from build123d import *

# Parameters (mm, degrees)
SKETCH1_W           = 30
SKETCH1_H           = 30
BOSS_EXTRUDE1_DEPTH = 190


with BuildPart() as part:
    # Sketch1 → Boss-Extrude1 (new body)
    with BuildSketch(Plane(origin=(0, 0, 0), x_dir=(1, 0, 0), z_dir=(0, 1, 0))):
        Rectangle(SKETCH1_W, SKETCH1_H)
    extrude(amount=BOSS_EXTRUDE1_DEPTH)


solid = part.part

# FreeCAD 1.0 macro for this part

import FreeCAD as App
import Part
import Sketcher

V = App.Vector


def add_polygon(sketch, points):
    """Adds a closed chain of lines whose ends are joined by coincident constraints."""
    first, n = sketch.GeometryCount, len(points)
    for a, b in zip(points, points[1:] + points[:1]):
        sketch.addGeometry(Part.LineSegment(App.Vector(*a, 0), App.Vector(*b, 0)), False)
    for i in range(n):
        sketch.addConstraint(Sketcher.Constraint("Coincident", first + i, 2, first + (i + 1) % n, 1))

doc = App.newDocument("Part")
body = doc.addObject("PartDesign::Body", "Body")

# Sketch on XZ plane
sketch1 = body.newObject("Sketcher::SketchObject", "Sketch")
sketch1.AttachmentSupport = (doc.getObject("XZ_Plane"), [""])
sketch1.MapMode = "FlatFace"
add_polygon(sketch1, [(-15, -15), (-15, 15), (15, 15), (15, -15)])  # lines 0-3
sketch1.addConstraint(Sketcher.Constraint("Vertical", 0))
sketch1.addConstraint(Sketcher.Constraint("Horizontal", 1))
sketch1.addConstraint(Sketcher.Constraint("Vertical", 2))
sketch1.addConstraint(Sketcher.Constraint("Horizontal", 3))
sketch1.addConstraint(Sketcher.Constraint("Symmetric", 0, 2, 2, 2, -1, 1))
sketch1.addConstraint(Sketcher.Constraint("Equal", 3, 0))
sketch1.addConstraint(Sketcher.Constraint("DistanceX", 1, 1, 1, 2, 30.0))
pad1 = body.newObject("PartDesign::Pad", "Pad")
pad1.Profile = sketch1
pad1.Length = 190
pad1.Reversed = True

doc.recompute()
